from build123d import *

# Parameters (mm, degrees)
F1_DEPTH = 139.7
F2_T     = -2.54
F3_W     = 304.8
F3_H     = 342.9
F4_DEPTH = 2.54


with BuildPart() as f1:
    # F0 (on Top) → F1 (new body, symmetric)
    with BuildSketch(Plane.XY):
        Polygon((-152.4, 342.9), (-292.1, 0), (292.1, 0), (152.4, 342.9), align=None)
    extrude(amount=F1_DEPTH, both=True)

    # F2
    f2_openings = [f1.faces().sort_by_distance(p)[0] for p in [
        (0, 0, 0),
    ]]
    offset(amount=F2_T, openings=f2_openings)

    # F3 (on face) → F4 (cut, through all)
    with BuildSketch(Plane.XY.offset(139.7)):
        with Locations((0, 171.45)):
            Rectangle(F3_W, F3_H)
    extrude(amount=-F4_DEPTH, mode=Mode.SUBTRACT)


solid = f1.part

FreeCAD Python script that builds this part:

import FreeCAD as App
import Part
import Sketcher
from FreeCAD import Vector
Q = App.Units.Quantity


def faces_at(feature, points):
    """Names of the faces that lie closest to the given points."""
    faces = feature.Shape.Faces
    near = lambda p: min(range(len(faces)), key=lambda i: faces[i].distToShape(Part.Vertex(*p))[0])
    return sorted({f"Face{near(p) + 1}" for p in points})

doc = App.newDocument("Part")
body = doc.addObject("PartDesign::Body", "Body")

# Sketch on XY plane
sketch1 = body.newObject("Sketcher::SketchObject", "Sketch")
sketch1.AttachmentSupport = (doc.getObject("XY_Plane"), [""])
sketch1.MapMode = "FlatFace"
sketch1.addGeometry([
    Part.LineSegment(Vector(-152, 343, 0), Vector(-292, 0, 0)),
    Part.LineSegment(Vector(-292, 0, 0), Vector(292, 0, 0)),
    Part.LineSegment(Vector(292, 0, 0), Vector(152, 343, 0)),
    Part.LineSegment(Vector(152, 343, 0), Vector(-152, 343, 0)),
], False)
sketch1.addConstraint([
    Sketcher.Constraint("Coincident", 0, 2, 1, 1),
    Sketcher.Constraint("Coincident", 1, 2, 2, 1),
    Sketcher.Constraint("Coincident", 2, 2, 3, 1),
    Sketcher.Constraint("Coincident", 3, 2, 0, 1),
    Sketcher.Constraint("Horizontal", 1),
    Sketcher.Constraint("Horizontal", 3),
    Sketcher.Constraint("Symmetric", 0, 2, 1, 2, -1, 1),
    Sketcher.Constraint("Equal", 0, 2),
    Sketcher.Constraint("DistanceX", 1, 1, 1, 2, Q("23 in")),
    Sketcher.Constraint("DistanceX", 3, 2, 3, 1, Q("12 in")),
    Sketcher.Constraint("DistanceY", -1, 1, 2, 2, Q("13.5 in")),
])
pad1 = body.newObject("PartDesign::Pad", "Pad")
pad1.Profile = sketch1
pad1.Length = Q("11 in")
pad1.Midplane = True
doc.recompute()

thickness = body.newObject("PartDesign::Thickness", "Thickness")
thickness.Base = (pad1, faces_at(pad1, [(0, 0, 0)]))
thickness.Value = Q("0.1 in")
thickness.Reversed = True
thickness.Join = "Arc"

# Sketch on XY plane
sketch2 = body.newObject("Sketcher::SketchObject", "Sketch001")
sketch2.AttachmentSupport = (doc.getObject("XY_Plane"), [""])
sketch2.MapMode = "FlatFace"
sketch2.AttachmentOffset = App.Placement(Vector(0, 0, 5.5 * 25.4), App.Rotation())
sketch2.addGeometry([
    Part.LineSegment(Vector(-152, 343, 0), Vector(-152, 0, 0)),
    Part.LineSegment(Vector(-152, 0, 0), Vector(152, 0, 0)),
    Part.LineSegment(Vector(152, 0, 0), Vector(152, 343, 0)),
    Part.LineSegment(Vector(152, 343, 0), Vector(-152, 343, 0)),
], False)
sketch2.addConstraint([
    Sketcher.Constraint("Coincident", 0, 2, 1, 1),
    Sketcher.Constraint("Coincident", 1, 2, 2, 1),
    Sketcher.Constraint("Coincident", 2, 2, 3, 1),
    Sketcher.Constraint("Coincident", 3, 2, 0, 1),
    Sketcher.Constraint("Vertical", 0),
    Sketcher.Constraint("Horizontal", 1),
    Sketcher.Constraint("Vertical", 2),
    Sketcher.Constraint("Horizontal", 3),
    Sketcher.Constraint("Symmetric", 0, 2, 1, 2, -1, 1),
    Sketcher.Constraint("DistanceX", 1, 1, 1, 2, Q("12 in")),
    Sketcher.Constraint("DistanceY", 0, 2, 0, 1, Q("13.5 in")),
])
pocket1 = body.newObject("PartDesign::Pocket", "Pocket")
pocket1.Profile = sketch2
pocket1.Length = Q("0.1 in")

doc.recompute()
